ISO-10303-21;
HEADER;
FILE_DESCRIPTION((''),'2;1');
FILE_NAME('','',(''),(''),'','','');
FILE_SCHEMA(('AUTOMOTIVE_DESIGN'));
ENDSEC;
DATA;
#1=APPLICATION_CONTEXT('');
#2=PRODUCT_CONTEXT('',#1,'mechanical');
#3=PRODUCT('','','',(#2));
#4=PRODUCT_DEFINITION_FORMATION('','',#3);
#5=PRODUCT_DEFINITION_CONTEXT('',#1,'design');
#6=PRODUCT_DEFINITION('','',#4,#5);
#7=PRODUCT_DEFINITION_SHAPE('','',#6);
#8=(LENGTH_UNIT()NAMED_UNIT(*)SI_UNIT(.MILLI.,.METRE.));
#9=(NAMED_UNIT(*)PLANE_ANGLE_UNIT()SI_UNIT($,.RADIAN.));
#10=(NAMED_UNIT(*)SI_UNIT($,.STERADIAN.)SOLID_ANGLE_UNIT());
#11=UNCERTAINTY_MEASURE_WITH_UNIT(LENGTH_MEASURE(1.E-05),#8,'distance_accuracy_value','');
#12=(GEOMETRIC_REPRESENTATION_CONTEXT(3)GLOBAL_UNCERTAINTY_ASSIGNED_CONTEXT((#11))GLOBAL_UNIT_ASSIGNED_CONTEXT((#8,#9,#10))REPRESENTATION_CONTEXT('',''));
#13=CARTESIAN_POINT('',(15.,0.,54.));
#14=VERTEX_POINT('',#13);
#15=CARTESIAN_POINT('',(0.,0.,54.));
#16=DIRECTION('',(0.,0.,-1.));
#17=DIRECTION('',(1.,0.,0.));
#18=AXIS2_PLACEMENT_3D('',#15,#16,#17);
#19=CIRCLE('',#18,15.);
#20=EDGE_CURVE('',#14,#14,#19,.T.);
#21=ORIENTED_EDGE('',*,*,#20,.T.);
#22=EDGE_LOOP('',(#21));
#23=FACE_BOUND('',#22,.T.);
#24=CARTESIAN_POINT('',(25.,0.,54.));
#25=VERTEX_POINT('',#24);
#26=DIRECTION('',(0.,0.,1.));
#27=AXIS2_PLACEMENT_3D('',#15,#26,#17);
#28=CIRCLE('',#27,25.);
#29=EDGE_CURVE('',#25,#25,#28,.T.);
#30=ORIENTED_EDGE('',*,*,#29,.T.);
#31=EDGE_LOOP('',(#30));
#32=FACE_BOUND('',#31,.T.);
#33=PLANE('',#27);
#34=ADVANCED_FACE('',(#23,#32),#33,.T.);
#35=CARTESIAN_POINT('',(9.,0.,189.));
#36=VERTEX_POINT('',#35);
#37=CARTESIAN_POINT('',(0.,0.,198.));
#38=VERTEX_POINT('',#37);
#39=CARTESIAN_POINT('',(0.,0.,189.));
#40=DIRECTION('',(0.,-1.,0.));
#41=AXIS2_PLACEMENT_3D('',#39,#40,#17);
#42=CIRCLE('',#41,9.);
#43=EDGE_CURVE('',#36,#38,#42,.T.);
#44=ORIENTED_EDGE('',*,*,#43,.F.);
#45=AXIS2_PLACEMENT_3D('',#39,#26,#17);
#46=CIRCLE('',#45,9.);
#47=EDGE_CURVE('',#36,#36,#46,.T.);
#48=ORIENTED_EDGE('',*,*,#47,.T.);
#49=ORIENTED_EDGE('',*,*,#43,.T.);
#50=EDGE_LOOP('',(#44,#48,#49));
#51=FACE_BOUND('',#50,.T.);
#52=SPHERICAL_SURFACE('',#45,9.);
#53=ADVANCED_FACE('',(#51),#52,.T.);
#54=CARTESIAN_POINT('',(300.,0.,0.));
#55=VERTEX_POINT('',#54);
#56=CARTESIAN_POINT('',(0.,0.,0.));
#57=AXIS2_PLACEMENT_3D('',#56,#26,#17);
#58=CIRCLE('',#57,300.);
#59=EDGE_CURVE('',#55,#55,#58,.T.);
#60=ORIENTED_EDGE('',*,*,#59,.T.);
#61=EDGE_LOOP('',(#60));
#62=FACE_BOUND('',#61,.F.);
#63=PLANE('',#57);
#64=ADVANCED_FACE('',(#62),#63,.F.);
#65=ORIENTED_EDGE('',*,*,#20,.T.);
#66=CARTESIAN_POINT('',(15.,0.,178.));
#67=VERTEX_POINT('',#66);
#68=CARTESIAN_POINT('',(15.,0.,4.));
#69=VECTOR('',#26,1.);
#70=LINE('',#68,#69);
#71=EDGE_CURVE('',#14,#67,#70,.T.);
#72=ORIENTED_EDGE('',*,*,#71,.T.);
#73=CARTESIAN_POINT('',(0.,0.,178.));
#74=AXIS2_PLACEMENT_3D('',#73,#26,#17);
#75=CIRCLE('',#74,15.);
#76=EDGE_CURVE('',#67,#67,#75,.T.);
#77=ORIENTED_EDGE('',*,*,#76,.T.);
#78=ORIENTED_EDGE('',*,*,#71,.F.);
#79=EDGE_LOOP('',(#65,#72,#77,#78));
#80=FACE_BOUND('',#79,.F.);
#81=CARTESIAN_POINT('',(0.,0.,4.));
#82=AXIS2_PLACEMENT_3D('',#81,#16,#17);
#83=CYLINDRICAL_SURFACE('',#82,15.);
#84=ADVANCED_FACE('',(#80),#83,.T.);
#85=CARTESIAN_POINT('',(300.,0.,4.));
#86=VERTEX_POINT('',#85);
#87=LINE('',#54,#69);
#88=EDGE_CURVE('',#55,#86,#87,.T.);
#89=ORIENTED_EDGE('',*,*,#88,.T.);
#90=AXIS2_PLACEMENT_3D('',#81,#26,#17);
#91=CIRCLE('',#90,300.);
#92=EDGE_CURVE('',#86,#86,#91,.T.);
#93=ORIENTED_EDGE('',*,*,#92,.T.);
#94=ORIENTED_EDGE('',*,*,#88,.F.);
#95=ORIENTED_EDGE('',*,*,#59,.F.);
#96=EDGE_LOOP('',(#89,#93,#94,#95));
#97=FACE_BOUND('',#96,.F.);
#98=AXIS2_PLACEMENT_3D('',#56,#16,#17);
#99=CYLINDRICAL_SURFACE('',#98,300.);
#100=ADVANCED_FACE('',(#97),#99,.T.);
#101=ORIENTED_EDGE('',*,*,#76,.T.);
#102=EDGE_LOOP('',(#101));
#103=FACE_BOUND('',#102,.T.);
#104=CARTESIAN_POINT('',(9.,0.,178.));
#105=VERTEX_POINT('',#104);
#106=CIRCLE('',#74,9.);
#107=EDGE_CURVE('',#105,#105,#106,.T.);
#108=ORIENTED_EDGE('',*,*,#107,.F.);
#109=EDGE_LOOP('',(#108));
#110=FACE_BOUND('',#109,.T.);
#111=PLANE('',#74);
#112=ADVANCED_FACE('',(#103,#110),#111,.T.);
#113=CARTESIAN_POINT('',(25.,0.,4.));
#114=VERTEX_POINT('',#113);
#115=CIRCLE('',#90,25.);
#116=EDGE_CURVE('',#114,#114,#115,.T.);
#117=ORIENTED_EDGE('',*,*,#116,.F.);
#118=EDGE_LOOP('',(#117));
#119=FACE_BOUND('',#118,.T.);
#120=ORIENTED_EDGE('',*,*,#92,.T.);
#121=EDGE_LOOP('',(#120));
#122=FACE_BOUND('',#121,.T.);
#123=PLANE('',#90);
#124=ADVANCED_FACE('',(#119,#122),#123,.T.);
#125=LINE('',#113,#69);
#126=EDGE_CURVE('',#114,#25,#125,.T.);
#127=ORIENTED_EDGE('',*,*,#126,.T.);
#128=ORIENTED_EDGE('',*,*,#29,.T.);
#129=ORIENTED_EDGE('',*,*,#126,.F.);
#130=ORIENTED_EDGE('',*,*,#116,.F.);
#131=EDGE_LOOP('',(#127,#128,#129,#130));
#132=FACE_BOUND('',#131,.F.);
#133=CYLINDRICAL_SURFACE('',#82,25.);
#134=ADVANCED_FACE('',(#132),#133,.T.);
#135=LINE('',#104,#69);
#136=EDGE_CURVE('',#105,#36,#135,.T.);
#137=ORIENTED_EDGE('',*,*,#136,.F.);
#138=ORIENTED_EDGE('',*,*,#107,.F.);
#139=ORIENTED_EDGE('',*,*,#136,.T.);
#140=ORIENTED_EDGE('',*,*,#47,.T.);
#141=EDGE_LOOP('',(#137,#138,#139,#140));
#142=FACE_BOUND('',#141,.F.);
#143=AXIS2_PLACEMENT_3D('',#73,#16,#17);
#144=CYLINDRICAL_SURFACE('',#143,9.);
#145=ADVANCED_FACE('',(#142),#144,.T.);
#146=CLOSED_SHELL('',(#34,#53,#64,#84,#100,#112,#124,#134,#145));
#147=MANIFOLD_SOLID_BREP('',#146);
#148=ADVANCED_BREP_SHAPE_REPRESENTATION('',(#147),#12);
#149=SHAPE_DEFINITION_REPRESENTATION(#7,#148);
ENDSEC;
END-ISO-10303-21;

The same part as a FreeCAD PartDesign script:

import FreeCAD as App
import Part
import Sketcher


def edges_at(feature, points):
    """Names of the edges that pass closest to the given points."""
    edges = feature.Shape.Edges
    near = lambda p: min(range(len(edges)), key=lambda i: edges[i].distToShape(Part.Vertex(*p))[0])
    return sorted({f"Edge{near(p) + 1}" for p in points})

doc = App.newDocument("Part")
body = doc.addObject("PartDesign::Body", "Body")

sketch1 = body.newObject("Sketcher::SketchObject", "Sketch")
sketch1.AttachmentSupport = (doc.getObject("XY_Plane"), [""])
sketch1.MapMode = "FlatFace"
sketch1.addGeometry(Part.Circle(App.Vector(0, 0, 0), App.Vector(0, 0, 1), 300), False)
sketch1.addConstraint([
    Sketcher.Constraint("Coincident", 0, 3, -1, 1),
    Sketcher.Constraint("Diameter", 0, 600.0),
])
pad1 = body.newObject("PartDesign::Pad", "Pad")
pad1.Profile = sketch1
pad1.Length = 4

sketch2 = body.newObject("Sketcher::SketchObject", "Sketch001")
sketch2.AttachmentSupport = (doc.getObject("XY_Plane"), [""])
sketch2.MapMode = "FlatFace"
sketch2.AttachmentOffset = App.Placement(App.Vector(0, 0, 4), App.Rotation())
sketch2.addGeometry(Part.Circle(App.Vector(0, 0, 0), App.Vector(0, 0, 1), 25), False)
sketch2.addConstraint([
    Sketcher.Constraint("Coincident", 0, 3, -1, 1),
    Sketcher.Constraint("Diameter", 0, 50.0),
])
pad2 = body.newObject("PartDesign::Pad", "Pad001")
pad2.Profile = sketch2
pad2.Length = 50

sketch3 = body.newObject("Sketcher::SketchObject", "Sketch002")
sketch3.AttachmentSupport = (doc.getObject("XY_Plane"), [""])
sketch3.MapMode = "FlatFace"
sketch3.AttachmentOffset = App.Placement(App.Vector(0, 0, 4), App.Rotation())
sketch3.addGeometry(Part.Circle(App.Vector(0, 0, 0), App.Vector(0, 0, 1), 15), False)
sketch3.addConstraint([
    Sketcher.Constraint("Coincident", 0, 3, -1, 1),
    Sketcher.Constraint("Diameter", 0, 30.0),
])
pad3 = body.newObject("PartDesign::Pad", "Pad002")
pad3.Profile = sketch3
pad3.Length = 174

sketch4 = body.newObject("Sketcher::SketchObject", "Sketch003")
sketch4.AttachmentSupport = (doc.getObject("XY_Plane"), [""])
sketch4.MapMode = "FlatFace"
sketch4.AttachmentOffset = App.Placement(App.Vector(0, 0, 178), App.Rotation())
sketch4.addGeometry(Part.Circle(App.Vector(0, 0, 0), App.Vector(0, 0, 1), 9), False)
sketch4.addConstraint([
    Sketcher.Constraint("Coincident", 0, 3, -1, 1),
    Sketcher.Constraint("Diameter", 0, 18.0),
])
pad4 = body.newObject("PartDesign::Pad", "Pad003")
pad4.Profile = sketch4
pad4.Length = 20
doc.recompute()

fillet = body.newObject("PartDesign::Fillet", "Fillet")
fillet.Base = (pad4, edges_at(pad4, [(-9, 0, 198)]))
fillet.Radius = 9

doc.recompute()
